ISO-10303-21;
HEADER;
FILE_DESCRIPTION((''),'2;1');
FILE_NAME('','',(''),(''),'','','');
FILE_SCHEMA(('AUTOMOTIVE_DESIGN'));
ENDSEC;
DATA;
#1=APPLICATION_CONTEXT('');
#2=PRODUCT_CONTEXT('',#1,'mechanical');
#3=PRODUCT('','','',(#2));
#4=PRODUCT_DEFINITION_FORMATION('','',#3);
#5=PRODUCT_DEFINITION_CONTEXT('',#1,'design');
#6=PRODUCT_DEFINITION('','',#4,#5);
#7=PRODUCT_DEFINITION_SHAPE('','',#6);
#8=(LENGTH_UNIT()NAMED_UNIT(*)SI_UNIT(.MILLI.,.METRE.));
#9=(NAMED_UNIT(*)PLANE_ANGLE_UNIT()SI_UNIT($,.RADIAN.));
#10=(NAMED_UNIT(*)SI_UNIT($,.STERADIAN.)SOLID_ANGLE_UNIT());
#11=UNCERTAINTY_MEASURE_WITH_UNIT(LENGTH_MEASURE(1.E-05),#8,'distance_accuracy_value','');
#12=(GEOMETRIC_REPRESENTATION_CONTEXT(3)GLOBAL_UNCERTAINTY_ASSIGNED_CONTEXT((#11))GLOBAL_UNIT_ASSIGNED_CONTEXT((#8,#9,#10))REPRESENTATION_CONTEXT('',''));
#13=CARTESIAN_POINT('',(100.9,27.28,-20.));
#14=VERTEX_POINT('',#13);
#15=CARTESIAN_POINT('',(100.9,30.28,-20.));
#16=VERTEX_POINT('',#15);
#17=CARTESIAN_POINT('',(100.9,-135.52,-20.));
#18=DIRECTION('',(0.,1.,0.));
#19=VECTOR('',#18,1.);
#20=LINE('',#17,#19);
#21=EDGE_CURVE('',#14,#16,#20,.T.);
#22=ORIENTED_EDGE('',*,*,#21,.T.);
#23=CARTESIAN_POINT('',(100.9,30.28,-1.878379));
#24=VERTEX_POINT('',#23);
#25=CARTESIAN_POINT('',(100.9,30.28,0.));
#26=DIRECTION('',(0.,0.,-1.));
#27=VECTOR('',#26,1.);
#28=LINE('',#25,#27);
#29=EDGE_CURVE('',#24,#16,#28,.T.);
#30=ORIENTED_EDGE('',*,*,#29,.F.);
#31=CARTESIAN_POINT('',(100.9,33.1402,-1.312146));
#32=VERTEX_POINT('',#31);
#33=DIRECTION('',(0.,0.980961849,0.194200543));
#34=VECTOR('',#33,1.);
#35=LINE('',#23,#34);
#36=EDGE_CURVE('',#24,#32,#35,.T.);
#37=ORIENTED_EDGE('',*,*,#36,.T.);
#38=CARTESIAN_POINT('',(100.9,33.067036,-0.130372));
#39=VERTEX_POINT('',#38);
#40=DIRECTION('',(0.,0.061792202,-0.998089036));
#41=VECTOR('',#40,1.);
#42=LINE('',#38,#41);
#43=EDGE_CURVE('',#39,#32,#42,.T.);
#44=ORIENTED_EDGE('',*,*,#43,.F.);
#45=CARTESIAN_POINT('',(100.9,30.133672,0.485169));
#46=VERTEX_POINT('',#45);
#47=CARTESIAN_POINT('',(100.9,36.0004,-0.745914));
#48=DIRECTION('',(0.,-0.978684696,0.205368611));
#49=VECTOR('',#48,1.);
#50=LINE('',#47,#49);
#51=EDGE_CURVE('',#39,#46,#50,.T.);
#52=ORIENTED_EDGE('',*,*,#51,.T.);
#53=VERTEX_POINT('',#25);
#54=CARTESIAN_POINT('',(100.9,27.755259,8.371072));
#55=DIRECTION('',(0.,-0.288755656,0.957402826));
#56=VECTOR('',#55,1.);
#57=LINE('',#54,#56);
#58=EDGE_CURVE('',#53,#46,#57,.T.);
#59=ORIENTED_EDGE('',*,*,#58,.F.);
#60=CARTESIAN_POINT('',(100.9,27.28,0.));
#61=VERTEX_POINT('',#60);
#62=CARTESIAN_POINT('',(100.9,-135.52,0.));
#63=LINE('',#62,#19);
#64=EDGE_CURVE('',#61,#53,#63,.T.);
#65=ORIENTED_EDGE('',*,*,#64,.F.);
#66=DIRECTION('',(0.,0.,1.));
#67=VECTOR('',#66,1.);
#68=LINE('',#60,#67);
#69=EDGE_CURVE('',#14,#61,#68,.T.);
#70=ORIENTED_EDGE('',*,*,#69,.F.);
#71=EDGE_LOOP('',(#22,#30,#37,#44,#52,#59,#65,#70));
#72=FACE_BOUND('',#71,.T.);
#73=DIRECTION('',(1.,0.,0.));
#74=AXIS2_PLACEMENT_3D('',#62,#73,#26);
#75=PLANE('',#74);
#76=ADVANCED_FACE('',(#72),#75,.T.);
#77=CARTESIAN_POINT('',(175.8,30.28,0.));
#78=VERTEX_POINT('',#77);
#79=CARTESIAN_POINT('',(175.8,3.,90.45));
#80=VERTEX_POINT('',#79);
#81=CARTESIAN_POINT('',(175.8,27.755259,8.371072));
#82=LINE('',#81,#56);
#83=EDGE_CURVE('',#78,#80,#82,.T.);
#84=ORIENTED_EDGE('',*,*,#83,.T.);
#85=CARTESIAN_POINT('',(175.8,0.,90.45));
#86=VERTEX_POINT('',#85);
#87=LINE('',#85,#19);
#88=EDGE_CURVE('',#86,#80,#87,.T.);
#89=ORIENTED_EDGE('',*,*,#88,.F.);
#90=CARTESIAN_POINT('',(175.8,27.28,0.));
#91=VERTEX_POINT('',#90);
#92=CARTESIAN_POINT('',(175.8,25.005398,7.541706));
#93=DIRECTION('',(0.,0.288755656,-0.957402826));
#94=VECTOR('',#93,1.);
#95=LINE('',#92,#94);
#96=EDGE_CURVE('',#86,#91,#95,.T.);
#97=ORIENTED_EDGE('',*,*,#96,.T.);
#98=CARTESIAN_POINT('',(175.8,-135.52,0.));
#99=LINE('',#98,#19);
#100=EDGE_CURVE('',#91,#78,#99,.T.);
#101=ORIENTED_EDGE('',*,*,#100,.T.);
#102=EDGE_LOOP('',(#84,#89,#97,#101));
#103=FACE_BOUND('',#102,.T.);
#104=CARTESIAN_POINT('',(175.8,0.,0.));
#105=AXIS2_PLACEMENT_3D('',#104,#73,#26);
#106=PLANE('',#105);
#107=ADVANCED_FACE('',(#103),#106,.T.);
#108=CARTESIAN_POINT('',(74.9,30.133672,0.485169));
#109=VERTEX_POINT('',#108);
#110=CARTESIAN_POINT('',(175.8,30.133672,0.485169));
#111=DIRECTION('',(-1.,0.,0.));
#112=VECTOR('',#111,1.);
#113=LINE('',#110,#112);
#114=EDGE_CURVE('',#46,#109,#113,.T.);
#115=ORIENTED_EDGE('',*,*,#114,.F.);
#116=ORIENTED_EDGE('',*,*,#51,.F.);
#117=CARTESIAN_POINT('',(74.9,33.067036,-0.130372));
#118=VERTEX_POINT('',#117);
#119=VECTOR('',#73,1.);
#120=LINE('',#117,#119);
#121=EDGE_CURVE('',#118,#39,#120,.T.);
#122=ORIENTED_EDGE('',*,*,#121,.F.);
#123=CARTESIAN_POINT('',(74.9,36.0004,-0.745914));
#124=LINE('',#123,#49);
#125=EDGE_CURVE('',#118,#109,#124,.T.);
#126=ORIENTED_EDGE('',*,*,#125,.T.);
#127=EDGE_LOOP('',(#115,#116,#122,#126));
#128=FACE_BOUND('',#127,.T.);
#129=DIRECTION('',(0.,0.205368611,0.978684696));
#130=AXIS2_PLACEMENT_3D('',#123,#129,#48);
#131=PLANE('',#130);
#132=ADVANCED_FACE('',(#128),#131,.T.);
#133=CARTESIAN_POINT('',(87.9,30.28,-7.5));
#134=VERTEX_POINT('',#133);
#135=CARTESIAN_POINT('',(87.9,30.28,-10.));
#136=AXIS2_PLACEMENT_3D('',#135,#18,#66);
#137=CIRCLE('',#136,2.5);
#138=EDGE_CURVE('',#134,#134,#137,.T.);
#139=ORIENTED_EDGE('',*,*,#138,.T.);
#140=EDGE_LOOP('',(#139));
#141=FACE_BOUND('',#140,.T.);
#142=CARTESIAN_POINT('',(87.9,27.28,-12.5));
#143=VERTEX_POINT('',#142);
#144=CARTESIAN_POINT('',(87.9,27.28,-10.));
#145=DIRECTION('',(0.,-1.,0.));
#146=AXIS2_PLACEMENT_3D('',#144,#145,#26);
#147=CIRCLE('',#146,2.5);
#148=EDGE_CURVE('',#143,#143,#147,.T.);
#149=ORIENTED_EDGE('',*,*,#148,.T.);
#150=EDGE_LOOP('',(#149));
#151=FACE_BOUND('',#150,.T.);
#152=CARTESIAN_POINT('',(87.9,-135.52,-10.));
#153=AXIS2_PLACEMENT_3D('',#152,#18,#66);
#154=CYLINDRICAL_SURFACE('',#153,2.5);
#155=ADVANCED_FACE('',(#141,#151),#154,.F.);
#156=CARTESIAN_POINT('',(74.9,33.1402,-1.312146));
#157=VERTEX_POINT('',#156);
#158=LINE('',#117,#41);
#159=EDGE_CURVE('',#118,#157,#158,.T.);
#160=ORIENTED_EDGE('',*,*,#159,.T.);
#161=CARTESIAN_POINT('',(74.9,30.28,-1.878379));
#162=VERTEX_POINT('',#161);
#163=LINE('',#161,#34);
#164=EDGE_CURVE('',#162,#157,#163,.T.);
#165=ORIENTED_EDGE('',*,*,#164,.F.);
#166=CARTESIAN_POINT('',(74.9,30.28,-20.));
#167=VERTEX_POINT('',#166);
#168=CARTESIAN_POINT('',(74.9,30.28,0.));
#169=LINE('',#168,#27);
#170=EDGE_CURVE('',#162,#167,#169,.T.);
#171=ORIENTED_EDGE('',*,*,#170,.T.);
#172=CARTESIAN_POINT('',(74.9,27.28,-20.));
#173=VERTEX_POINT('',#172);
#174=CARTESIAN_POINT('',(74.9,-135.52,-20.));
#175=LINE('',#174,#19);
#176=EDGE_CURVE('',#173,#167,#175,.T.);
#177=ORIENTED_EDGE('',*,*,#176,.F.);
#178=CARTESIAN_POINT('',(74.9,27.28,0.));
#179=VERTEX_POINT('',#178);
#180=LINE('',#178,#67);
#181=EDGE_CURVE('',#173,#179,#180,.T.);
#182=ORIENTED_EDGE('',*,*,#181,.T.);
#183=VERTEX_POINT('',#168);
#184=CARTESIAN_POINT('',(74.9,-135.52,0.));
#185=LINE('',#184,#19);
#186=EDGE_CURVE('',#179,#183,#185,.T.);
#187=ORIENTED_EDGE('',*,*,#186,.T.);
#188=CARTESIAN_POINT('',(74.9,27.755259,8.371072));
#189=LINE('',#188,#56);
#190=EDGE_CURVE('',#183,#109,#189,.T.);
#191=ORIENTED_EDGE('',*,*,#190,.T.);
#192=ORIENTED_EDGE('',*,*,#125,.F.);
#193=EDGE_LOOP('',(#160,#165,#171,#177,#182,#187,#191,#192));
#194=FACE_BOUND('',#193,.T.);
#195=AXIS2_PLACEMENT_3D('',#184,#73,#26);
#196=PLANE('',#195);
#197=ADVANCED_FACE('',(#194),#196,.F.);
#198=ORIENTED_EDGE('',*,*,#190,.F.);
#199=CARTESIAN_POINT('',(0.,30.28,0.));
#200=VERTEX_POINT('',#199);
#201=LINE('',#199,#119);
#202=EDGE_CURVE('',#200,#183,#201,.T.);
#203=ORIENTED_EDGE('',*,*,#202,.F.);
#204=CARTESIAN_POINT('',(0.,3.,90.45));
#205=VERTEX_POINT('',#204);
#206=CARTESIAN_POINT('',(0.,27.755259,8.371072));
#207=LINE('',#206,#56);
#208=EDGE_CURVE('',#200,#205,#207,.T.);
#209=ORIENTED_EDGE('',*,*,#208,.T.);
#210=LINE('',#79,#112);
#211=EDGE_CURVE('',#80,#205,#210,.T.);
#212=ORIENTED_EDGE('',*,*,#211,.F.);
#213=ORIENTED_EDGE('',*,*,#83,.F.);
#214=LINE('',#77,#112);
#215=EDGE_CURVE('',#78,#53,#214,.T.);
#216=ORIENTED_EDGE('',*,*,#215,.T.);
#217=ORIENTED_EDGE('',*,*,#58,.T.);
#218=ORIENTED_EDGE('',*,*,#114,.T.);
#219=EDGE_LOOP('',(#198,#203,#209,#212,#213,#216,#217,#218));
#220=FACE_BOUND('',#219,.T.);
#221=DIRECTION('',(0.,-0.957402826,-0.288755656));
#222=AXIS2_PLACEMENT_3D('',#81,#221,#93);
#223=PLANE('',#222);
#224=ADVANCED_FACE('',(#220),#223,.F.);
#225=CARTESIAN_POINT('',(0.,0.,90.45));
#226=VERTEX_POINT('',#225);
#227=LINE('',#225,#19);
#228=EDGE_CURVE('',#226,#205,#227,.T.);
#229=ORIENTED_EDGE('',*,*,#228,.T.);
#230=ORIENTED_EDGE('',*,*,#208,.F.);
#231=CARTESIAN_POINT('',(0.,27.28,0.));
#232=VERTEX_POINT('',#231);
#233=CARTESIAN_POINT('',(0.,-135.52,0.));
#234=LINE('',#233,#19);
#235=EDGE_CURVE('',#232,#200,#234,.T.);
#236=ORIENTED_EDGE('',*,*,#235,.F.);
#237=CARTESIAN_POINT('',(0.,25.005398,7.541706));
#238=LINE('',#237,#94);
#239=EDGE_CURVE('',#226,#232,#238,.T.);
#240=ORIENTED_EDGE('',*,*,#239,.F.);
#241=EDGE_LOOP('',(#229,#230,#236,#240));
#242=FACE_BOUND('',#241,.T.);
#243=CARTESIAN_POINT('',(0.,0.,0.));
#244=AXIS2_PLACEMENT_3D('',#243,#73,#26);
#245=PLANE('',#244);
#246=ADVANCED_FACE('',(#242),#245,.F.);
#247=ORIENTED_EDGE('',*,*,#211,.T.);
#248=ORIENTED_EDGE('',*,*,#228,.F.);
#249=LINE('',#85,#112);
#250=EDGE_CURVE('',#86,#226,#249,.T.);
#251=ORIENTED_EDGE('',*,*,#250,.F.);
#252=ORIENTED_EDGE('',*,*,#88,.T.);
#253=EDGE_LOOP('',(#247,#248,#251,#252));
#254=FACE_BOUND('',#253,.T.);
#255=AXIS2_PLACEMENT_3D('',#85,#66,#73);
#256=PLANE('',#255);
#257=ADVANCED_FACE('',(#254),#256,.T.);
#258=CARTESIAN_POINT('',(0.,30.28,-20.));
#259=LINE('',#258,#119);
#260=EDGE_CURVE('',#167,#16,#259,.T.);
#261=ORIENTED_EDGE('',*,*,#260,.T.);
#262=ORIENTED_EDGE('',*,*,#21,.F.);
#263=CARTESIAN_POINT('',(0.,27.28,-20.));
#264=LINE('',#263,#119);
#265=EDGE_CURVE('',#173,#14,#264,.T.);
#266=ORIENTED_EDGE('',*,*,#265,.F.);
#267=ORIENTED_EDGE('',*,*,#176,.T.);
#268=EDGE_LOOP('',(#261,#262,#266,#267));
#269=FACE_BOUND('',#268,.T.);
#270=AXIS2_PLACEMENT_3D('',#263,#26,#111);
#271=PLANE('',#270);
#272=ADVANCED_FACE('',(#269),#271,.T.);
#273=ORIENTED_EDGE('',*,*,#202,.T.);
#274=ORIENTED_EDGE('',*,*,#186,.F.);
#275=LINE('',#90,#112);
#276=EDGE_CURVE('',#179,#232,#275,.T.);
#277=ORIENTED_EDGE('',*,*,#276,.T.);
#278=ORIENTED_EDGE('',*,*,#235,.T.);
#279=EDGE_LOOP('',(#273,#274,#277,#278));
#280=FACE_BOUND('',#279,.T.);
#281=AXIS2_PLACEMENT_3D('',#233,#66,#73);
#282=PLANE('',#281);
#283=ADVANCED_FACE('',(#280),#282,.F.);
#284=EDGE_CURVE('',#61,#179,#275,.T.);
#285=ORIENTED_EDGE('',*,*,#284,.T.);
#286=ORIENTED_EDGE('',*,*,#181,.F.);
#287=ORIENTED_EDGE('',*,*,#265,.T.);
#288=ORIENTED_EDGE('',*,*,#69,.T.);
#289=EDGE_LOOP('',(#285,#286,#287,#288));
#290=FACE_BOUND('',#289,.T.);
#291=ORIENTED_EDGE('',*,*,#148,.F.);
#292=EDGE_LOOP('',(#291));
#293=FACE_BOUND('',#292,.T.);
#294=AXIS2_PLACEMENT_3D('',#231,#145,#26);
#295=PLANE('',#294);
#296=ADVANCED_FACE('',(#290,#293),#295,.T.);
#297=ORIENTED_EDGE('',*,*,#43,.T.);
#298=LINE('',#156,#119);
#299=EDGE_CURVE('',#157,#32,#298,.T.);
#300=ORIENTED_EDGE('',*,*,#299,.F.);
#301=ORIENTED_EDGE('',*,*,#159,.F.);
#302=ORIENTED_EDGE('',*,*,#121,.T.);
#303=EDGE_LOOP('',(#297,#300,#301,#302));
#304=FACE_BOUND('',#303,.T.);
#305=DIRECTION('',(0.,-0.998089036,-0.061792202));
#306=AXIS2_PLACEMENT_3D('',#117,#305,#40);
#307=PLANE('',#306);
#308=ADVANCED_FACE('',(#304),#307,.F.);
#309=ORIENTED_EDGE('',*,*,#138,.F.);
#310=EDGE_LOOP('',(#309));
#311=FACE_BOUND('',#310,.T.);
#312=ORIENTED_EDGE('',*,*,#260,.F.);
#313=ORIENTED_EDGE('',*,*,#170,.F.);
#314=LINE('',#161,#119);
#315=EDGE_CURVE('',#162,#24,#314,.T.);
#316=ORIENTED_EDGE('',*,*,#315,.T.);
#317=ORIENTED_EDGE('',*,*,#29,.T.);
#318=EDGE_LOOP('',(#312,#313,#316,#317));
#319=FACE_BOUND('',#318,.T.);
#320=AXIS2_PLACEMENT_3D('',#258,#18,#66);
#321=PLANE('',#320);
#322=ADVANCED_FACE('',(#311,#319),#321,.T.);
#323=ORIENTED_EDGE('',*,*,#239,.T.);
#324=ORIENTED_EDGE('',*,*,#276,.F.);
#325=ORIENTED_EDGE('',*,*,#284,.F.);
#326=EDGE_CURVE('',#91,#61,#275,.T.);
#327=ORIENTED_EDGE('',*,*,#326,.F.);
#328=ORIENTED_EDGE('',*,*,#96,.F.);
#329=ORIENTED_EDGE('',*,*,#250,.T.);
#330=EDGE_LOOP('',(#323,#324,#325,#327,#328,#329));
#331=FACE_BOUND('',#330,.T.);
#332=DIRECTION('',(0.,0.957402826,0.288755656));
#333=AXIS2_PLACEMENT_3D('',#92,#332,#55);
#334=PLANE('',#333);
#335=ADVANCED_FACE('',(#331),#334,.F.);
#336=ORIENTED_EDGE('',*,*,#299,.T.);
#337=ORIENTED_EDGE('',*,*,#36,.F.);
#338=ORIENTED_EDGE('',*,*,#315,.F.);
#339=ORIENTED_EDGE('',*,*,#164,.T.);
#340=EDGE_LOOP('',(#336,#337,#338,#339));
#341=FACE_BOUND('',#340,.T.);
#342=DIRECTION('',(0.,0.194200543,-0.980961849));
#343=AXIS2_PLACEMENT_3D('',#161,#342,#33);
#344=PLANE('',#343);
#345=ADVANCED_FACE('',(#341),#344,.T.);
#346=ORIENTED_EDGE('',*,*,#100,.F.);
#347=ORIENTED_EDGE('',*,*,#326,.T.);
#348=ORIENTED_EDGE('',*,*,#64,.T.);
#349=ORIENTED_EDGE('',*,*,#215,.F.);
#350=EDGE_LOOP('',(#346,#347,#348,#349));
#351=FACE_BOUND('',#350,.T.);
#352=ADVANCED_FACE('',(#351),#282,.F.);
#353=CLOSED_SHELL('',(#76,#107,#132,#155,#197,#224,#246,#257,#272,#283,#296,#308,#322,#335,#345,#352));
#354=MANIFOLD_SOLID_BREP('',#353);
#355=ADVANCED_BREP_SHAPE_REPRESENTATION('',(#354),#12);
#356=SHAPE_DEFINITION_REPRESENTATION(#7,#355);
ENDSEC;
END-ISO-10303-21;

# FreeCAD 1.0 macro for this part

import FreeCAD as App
import Part
import Sketcher

V = App.Vector
Q = App.Units.Quantity

doc = App.newDocument("Part")
body = doc.addObject("PartDesign::Body", "Body")

# Sketch on YZ plane
sketch1 = doc.addObject("Sketcher::SketchObject", "Sketch")
body.addObject(sketch1)
sketch1.AttachmentSupport = (doc.YZ_Plane, [""])
sketch1.MapMode = "FlatFace"
sketch1.addGeometry([
    Part.LineSegment(V(27.3, 0, 0), V(30.3, 0, 0)),
    Part.LineSegment(V(30.3, 0, 0), V(3, 90.5, 0)),
    Part.LineSegment(V(3, 90.5, 0), V(0, 90.5, 0)),
    Part.LineSegment(V(0, 90.5, 0), V(27.3, 0, 0)),
], False)
sketch1.addConstraint([
    Sketcher.Constraint("Coincident", 0, 2, 1, 1),
    Sketcher.Constraint("Coincident", 1, 2, 2, 1),
    Sketcher.Constraint("Coincident", 2, 2, 3, 1),
    Sketcher.Constraint("Coincident", 3, 2, 0, 1),
    Sketcher.Constraint("Horizontal", 0),
    Sketcher.Constraint("Horizontal", 2),
    Sketcher.Constraint("PointOnObject", 0, 2, -1),
    Sketcher.Constraint("PointOnObject", 2, 2, -2),
    Sketcher.Constraint("Parallel", 1, 3),
    Sketcher.Constraint("DistanceX", 0, 1, 0, 2, Q("3 mm")),
    Sketcher.Constraint("DistanceX", -1, 1, 0, 2, Q("30.28 mm")),
    Sketcher.Constraint("DistanceY", -1, 1, 1, 2, Q("90.45 mm")),
])
pad1 = doc.addObject("PartDesign::Pad", "Pad")
body.addObject(pad1)
pad1.Profile = sketch1
pad1.Length = 175.8

# Sketch on YZ plane
sketch2 = doc.addObject("Sketcher::SketchObject", "Sketch001")
body.addObject(sketch2)
sketch2.AttachmentSupport = (doc.YZ_Plane, [""])
sketch2.MapMode = "FlatFace"
sketch2.AttachmentOffset = App.Placement(V(0, 0, 175.8), App.Rotation())
sketch2.addGeometry([
    Part.LineSegment(V(30.3, 0, 0), V(27.3, 0, 0)),
    Part.LineSegment(V(27.3, 0, 0), V(27.3, -20, 0)),
    Part.LineSegment(V(27.3, -20, 0), V(30.3, -20, 0)),
    Part.LineSegment(V(30.3, -20, 0), V(30.3, 0, 0)),
], False)
sketch2.addConstraint([
    Sketcher.Constraint("Coincident", 0, 2, 1, 1),
    Sketcher.Constraint("Coincident", 1, 2, 2, 1),
    Sketcher.Constraint("Coincident", 2, 2, 3, 1),
    Sketcher.Constraint("Coincident", 3, 2, 0, 1),
    Sketcher.Constraint("Horizontal", 0),
    Sketcher.Constraint("Vertical", 1),
    Sketcher.Constraint("Horizontal", 2),
    Sketcher.Constraint("Vertical", 3),
    Sketcher.Constraint("PointOnObject", 0, 2, -1),
    Sketcher.Constraint("DistanceX", 0, 2, 0, 1, Q("3 mm")),
    Sketcher.Constraint("DistanceY", 1, 2, 1, 1, Q("20 mm")),
    Sketcher.Constraint("DistanceX", -1, 1, 0, 2, Q("27.28 mm")),
])
pad2 = doc.addObject("PartDesign::Pad", "Pad001")
body.addObject(pad2)
pad2.Profile = sketch2
pad2.Length = 175.8
pad2.Reversed = True

# Sketch on XZ plane
sketch3 = doc.addObject("Sketcher::SketchObject", "Sketch002")
body.addObject(sketch3)
sketch3.AttachmentSupport = (doc.XZ_Plane, [""])
sketch3.MapMode = "FlatFace"
sketch3.AttachmentOffset = App.Placement(V(0, 0, -30.28), App.Rotation())
sketch3.addGeometry([
    Part.LineSegment(V(100.9, -20, 0), V(100.9, 0, 0)),  # 0
    Part.LineSegment(V(100.9, 0, 0), V(175.8, 0, 0)),  # 1
    Part.LineSegment(V(175.8, 0, 0), V(175.8, -20, 0)),  # 2
    Part.LineSegment(V(175.8, -20, 0), V(100.9, -20, 0)),  # 3
    Part.LineSegment(V(0, -20, 0), V(0, 0, 0)),  # 4
    Part.LineSegment(V(0, 0, 0), V(74.9, 0, 0)),  # 5
    Part.LineSegment(V(74.9, 0, 0), V(74.9, -20, 0)),  # 6
    Part.LineSegment(V(74.9, -20, 0), V(0, -20, 0)),  # 7
    Part.Circle(V(87.9, -10, 0), V(0, 0, 1), 2.5),  # 8
], False)
sketch3.addConstraint([
    Sketcher.Constraint("Coincident", 0, 2, 1, 1),
    Sketcher.Constraint("Coincident", 1, 2, 2, 1),
    Sketcher.Constraint("Coincident", 2, 2, 3, 1),
    Sketcher.Constraint("Coincident", 3, 2, 0, 1),
    Sketcher.Constraint("Coincident", 4, 2, 5, 1),
    Sketcher.Constraint("Coincident", 5, 2, 6, 1),
    Sketcher.Constraint("Coincident", 6, 2, 7, 1),
    Sketcher.Constraint("Coincident", 7, 2, 4, 1),
    Sketcher.Constraint("Vertical", 0),
    Sketcher.Constraint("Horizontal", 1),
    Sketcher.Constraint("Vertical", 2),
    Sketcher.Constraint("Horizontal", 3),
    Sketcher.Constraint("Vertical", 4),
    Sketcher.Constraint("Horizontal", 5),
    Sketcher.Constraint("Vertical", 6),
    Sketcher.Constraint("Horizontal", 7),
    Sketcher.Constraint("Coincident", 4, 2, -1, 1),
    Sketcher.Constraint("PointOnObject", 0, 2, -1),
    Sketcher.Constraint("Horizontal", 3, 2, 6, 2),
    Sketcher.Constraint("Equal", 3, 5),
    Sketcher.Constraint("Diameter", 8, Q("5 mm")),
    Sketcher.Constraint("DistanceY", 0, 1, 0, 2, Q("20 mm")),
    Sketcher.Constraint("DistanceX", 1, 1, 1, 2, Q("74.9 mm")),
    Sketcher.Constraint("DistanceY", 8, 3, -1, 1, Q("10 mm")),
    Sketcher.Constraint("DistanceX", 8, 3, 0, 2, Q("13 mm")),
    Sketcher.Constraint("DistanceX", 5, 2, 8, 3, Q("13 mm")),
])
pocket1 = doc.addObject("PartDesign::Pocket", "Pocket")
body.addObject(pocket1)
pocket1.Profile = sketch3
pocket1.Length = 165.8
pocket1.Reversed = True

# Sketch on YZ plane
sketch4 = doc.addObject("Sketcher::SketchObject", "Sketch003")
body.addObject(sketch4)
sketch4.AttachmentSupport = (doc.YZ_Plane, [""])
sketch4.MapMode = "FlatFace"
sketch4.AttachmentOffset = App.Placement(V(0, 0, 74.9), App.Rotation())
sketch4.addGeometry([
    Part.LineSegment(V(30.3, -1.9, 0), V(36, -0.7, 0)),
    Part.LineSegment(V(36, -0.7, 0), V(29.8, 0.6, 0)),
    Part.LineSegment(V(29.8, 0.6, 0), V(30.3, -1.9, 0)),
], False)
sketch4.addConstraint([
    Sketcher.Constraint("Coincident", 0, 2, 1, 1),
    Sketcher.Constraint("Coincident", 1, 2, 2, 1),
    Sketcher.Constraint("Coincident", 2, 2, 0, 1),
    Sketcher.Constraint("Perpendicular", 0, 2),
    Sketcher.Constraint("DistanceX", -1, 1, 2, 2, Q("30.28 mm")),
    Sketcher.Constraint("DistanceX", -1, 1, 0, 2, Q("36.0004 mm")),
    Sketcher.Constraint("Distance", 0, Q("5.831419 mm")),
    Sketcher.Constraint("Distance", 1, Q("6.33733 mm")),
    Sketcher.Constraint("DistanceY", 2, 2, -1, 1, Q("1.878379 mm")),
])
pad3 = doc.addObject("PartDesign::Pad", "Pad002")
body.addObject(pad3)
pad3.Profile = sketch4
pad3.Length = 26

# Sketch on YZ plane
sketch5 = doc.addObject("Sketcher::SketchObject", "Sketch004")
body.addObject(sketch5)
sketch5.AttachmentSupport = (doc.YZ_Plane, [""])
sketch5.MapMode = "FlatFace"
sketch5.AttachmentOffset = App.Placement(V(0, 0, 100.9), App.Rotation())
sketch5.addGeometry([
    Part.LineSegment(V(33.1, -0.1, 0), V(33.1, -1.3, 0)),
    Part.LineSegment(V(33.1, -1.3, 0), V(36, -0.7, 0)),
    Part.LineSegment(V(36, -0.7, 0), V(33.1, -0.1, 0)),
], False)
sketch5.addConstraint([
    Sketcher.Constraint("Coincident", 0, 2, 1, 1),
    Sketcher.Constraint("Coincident", 1, 2, 2, 1),
    Sketcher.Constraint("Coincident", 2, 2, 0, 1),
    Sketcher.Constraint("DistanceX", -1, 1, 0, 2, Q("33.1402 mm")),
    Sketcher.Constraint("DistanceX", -1, 1, 1, 2, Q("36.0004 mm")),
    Sketcher.Constraint("Distance", 1, Q("2.91571 mm")),
    Sketcher.Constraint("Distance", 2, Q("2.997251 mm")),
    Sketcher.Constraint("DistanceY", 1, 2, 2, 2, Q("0.615541 mm")),
    Sketcher.Constraint("DistanceY", 0, 2, -1, 1, Q("1.312146 mm")),
])
pocket2 = doc.addObject("PartDesign::Pocket", "Pocket001")
body.addObject(pocket2)
pocket2.Profile = sketch5
pocket2.Length = 26

doc.recompute()
